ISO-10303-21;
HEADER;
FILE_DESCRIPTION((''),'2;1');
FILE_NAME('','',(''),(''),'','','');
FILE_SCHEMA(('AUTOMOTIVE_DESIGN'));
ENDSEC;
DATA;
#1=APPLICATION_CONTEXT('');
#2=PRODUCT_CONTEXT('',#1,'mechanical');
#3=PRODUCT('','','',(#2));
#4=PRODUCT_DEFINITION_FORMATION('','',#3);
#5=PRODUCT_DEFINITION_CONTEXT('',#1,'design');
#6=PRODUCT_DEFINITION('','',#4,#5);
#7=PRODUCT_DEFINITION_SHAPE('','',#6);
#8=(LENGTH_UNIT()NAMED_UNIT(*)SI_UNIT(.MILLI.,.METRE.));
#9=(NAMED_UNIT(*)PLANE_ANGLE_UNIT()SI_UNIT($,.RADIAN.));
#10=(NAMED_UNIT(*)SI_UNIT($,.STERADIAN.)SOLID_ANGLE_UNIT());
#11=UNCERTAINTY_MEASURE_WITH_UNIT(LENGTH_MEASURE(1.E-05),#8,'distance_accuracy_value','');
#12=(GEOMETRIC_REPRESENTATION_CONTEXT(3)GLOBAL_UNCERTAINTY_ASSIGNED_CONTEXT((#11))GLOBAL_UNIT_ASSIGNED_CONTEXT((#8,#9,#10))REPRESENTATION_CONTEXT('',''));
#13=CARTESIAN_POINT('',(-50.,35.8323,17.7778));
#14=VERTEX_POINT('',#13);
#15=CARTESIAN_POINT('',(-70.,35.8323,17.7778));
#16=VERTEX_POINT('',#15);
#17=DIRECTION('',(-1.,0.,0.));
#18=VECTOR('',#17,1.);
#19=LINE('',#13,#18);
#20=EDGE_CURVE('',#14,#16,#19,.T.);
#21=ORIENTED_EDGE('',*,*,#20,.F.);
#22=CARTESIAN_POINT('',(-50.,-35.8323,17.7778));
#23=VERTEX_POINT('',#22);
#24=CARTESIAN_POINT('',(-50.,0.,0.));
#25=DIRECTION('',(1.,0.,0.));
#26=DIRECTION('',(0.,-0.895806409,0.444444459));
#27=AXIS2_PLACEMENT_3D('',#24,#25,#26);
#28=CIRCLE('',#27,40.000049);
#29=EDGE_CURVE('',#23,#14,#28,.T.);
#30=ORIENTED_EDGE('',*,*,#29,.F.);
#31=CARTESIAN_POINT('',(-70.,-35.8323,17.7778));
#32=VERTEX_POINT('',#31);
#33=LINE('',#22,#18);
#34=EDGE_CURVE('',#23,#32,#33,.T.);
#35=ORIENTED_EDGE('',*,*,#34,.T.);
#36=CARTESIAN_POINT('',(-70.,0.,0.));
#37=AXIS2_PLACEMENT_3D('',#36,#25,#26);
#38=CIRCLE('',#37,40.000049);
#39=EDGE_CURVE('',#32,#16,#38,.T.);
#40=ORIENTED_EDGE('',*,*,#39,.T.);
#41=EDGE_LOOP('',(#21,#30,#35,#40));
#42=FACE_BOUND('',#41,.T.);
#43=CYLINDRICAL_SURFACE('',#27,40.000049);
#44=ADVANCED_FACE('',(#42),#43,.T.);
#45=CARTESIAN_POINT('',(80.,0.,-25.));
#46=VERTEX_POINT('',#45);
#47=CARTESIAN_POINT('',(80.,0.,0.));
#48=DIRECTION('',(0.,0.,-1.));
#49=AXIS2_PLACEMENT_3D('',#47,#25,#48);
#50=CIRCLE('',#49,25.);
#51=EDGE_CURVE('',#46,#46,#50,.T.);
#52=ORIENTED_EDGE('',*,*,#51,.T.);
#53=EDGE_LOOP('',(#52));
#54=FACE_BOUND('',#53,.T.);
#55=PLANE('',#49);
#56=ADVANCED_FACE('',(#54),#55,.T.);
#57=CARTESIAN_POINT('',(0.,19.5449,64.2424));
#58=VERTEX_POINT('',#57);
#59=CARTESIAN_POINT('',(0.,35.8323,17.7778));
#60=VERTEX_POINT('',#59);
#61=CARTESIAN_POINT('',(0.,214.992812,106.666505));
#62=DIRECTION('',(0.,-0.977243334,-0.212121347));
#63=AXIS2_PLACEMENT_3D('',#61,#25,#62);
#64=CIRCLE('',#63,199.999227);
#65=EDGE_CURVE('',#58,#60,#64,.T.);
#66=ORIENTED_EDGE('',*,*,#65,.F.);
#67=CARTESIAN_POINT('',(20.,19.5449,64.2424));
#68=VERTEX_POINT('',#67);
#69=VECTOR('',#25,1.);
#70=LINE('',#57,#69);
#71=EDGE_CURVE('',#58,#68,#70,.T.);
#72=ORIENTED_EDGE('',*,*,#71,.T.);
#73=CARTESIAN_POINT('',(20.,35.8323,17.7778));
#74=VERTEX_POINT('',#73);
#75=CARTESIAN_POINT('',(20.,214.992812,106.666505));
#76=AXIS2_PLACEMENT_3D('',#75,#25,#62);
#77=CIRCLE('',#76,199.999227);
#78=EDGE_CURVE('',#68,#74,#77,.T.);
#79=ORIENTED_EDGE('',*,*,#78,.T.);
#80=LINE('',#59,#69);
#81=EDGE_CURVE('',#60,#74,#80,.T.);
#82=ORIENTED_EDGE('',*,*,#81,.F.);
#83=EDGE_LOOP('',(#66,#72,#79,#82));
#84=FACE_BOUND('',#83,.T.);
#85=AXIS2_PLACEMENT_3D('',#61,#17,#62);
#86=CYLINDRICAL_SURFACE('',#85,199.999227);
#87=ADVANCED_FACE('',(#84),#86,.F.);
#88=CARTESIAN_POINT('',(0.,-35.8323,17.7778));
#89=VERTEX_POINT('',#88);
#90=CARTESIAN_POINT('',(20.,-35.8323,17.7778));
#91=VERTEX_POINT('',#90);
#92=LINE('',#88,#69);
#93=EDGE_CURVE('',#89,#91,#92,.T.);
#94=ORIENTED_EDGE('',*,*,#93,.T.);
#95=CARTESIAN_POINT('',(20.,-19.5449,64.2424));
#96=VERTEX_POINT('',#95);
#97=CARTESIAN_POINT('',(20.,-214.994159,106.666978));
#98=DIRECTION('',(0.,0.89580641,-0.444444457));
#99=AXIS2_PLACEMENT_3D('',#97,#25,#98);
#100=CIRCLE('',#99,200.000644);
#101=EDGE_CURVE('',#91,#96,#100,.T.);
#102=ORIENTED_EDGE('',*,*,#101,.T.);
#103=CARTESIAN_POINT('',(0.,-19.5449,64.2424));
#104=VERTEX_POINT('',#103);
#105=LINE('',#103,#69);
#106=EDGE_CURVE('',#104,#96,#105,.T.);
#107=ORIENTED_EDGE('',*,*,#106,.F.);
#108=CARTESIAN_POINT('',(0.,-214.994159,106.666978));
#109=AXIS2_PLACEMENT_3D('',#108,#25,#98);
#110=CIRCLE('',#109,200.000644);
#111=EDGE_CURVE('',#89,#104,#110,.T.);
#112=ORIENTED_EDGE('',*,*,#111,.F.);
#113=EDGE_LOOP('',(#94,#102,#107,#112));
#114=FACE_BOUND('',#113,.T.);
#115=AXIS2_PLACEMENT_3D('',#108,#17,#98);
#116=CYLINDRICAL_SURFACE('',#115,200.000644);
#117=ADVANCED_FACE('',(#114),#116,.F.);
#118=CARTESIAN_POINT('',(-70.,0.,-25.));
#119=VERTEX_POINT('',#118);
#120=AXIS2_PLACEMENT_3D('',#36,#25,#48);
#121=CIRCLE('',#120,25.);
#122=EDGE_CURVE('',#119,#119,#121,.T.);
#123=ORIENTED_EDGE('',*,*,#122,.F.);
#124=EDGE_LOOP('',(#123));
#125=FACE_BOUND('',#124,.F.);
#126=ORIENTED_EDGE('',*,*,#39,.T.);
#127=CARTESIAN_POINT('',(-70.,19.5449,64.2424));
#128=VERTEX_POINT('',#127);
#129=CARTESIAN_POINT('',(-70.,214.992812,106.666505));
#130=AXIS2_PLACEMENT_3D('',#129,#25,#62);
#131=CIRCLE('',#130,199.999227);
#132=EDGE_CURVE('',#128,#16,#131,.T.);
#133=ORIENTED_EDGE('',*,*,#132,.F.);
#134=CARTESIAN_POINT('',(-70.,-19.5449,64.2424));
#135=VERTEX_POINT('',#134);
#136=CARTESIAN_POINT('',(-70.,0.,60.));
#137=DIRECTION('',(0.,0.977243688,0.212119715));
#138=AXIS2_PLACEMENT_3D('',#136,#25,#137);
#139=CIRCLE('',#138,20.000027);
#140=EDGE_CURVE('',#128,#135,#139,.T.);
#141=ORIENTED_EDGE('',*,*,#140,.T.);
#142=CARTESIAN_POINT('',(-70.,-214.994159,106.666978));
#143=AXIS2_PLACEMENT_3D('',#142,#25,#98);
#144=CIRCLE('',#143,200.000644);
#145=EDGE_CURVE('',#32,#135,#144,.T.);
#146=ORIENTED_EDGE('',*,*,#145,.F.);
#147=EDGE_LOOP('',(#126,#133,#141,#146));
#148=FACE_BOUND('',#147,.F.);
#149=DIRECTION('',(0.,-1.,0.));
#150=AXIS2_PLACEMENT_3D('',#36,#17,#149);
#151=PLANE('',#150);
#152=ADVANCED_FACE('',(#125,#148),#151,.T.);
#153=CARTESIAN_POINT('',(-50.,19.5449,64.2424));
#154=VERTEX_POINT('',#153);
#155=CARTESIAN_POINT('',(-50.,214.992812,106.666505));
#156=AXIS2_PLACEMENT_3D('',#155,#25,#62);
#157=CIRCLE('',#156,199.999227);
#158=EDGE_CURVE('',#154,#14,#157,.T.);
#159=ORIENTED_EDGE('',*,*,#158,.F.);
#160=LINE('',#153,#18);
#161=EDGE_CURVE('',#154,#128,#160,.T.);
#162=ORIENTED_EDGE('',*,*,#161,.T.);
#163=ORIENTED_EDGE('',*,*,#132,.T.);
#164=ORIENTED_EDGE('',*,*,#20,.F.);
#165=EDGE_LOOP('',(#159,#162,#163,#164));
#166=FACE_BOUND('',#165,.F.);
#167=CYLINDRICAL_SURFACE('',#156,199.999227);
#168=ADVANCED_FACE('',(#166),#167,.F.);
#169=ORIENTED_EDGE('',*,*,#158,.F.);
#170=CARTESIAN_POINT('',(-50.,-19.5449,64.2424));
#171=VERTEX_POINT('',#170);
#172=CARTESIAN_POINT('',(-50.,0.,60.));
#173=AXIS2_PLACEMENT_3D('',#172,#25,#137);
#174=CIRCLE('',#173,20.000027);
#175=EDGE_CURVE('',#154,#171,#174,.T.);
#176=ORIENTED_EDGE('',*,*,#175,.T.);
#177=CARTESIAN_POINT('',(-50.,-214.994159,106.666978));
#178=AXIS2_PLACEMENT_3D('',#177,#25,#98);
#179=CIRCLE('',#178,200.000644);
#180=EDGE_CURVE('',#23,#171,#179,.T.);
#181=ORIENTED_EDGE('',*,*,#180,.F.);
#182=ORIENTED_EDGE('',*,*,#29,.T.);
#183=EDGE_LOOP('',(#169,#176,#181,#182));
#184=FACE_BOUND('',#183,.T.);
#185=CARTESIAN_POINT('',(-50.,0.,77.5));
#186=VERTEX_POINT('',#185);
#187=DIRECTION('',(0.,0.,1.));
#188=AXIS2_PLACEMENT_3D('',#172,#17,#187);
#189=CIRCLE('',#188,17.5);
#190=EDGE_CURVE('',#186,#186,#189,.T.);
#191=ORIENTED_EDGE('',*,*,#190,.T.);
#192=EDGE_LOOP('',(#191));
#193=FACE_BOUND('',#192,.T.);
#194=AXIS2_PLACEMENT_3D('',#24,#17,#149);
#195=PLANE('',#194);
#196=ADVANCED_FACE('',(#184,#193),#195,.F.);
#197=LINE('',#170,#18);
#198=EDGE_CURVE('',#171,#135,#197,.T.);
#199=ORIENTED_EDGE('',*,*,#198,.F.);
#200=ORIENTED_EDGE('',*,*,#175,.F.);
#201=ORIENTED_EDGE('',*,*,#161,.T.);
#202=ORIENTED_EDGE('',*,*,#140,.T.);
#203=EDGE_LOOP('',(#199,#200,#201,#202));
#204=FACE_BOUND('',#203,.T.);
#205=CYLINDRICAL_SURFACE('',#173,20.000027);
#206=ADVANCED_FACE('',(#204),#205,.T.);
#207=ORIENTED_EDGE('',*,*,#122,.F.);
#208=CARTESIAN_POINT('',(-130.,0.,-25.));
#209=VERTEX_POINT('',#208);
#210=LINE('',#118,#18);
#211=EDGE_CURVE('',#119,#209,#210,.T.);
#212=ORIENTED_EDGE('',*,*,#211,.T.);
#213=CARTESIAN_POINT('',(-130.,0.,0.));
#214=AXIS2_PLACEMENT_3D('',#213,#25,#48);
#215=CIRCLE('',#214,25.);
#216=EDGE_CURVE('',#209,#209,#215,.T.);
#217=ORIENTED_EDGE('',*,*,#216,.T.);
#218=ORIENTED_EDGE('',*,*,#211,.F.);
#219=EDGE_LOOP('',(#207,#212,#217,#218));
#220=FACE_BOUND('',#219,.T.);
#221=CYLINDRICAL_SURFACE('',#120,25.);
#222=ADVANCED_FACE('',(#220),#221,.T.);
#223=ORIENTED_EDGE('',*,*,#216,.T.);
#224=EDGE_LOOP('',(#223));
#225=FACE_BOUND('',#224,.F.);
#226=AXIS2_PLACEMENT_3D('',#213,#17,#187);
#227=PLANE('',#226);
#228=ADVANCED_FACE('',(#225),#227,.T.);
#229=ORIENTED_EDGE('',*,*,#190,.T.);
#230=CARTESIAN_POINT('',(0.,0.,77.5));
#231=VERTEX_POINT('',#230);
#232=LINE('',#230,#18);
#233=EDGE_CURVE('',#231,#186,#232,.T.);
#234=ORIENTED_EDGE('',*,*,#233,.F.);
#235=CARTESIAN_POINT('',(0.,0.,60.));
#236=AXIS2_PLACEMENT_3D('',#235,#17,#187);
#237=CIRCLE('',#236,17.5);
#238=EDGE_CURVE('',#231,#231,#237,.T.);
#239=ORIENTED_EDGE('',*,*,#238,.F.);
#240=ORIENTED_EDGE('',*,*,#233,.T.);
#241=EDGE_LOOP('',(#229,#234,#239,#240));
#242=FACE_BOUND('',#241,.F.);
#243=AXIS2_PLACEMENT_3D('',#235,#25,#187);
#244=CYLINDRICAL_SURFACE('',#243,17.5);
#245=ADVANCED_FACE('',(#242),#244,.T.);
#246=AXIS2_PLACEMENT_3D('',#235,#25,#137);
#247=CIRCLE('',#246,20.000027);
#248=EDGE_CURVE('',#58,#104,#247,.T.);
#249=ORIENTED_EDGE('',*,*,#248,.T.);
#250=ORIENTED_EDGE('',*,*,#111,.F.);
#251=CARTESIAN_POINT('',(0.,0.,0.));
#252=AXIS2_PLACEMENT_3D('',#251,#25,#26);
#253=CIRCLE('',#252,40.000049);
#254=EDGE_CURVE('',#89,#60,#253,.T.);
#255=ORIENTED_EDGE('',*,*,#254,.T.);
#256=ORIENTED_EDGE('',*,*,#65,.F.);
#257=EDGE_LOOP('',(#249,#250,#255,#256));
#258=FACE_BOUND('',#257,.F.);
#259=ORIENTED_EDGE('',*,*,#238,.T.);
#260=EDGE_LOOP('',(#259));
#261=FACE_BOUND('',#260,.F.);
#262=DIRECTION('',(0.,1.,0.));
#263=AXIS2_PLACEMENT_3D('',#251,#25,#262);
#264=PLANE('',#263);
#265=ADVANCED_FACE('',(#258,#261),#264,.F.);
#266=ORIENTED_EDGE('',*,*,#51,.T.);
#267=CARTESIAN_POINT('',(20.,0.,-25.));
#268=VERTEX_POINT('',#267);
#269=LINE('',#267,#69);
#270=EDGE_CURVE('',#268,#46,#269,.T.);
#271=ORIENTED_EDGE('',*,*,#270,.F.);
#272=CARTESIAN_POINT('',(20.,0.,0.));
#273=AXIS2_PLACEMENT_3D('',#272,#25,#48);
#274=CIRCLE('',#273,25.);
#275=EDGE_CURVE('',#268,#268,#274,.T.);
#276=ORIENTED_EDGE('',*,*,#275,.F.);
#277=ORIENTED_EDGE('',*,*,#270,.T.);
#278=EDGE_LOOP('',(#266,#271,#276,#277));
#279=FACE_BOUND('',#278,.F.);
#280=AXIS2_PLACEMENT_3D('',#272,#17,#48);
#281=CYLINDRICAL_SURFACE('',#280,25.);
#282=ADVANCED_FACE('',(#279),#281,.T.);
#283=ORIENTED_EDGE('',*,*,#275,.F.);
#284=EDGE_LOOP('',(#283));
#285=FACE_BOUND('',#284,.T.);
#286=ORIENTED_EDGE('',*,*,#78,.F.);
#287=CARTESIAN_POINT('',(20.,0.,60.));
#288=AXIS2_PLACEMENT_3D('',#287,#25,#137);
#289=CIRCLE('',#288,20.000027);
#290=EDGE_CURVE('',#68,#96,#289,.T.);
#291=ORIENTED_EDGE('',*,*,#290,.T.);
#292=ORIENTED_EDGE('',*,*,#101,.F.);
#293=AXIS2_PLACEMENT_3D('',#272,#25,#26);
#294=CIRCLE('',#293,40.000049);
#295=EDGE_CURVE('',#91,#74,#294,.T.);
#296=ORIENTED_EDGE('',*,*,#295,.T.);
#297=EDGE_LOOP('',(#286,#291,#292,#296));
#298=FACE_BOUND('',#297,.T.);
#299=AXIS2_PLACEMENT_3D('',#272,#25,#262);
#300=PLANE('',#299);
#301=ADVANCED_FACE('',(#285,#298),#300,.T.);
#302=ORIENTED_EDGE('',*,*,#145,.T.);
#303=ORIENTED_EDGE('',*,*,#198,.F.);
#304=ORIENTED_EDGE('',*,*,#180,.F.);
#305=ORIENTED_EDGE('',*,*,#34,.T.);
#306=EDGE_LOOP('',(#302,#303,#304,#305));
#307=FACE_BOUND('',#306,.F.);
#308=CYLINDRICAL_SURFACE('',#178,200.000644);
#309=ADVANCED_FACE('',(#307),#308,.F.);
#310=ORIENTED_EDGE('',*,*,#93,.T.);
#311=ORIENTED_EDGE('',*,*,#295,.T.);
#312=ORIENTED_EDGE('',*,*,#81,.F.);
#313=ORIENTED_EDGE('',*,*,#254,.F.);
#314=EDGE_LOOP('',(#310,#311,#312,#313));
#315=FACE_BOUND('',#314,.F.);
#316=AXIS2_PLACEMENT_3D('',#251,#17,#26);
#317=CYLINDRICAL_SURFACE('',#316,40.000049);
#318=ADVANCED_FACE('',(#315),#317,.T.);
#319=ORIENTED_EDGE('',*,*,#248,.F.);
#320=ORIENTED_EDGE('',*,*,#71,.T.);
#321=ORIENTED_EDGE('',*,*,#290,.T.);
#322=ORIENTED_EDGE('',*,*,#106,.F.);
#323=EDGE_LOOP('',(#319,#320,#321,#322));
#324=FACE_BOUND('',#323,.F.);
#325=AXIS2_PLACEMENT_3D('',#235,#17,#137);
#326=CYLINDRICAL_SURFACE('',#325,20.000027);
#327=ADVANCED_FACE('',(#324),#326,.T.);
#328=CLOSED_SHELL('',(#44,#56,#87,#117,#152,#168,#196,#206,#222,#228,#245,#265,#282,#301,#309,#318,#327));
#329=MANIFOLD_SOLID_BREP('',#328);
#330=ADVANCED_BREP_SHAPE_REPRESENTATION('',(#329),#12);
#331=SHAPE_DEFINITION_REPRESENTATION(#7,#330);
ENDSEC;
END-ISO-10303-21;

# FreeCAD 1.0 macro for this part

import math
import FreeCAD as App
import Part
import Sketcher
from FreeCAD import Vector

doc = App.newDocument("Part")
params = doc.addObject("Spreadsheet::Sheet", "Params")
for row, (alias, value) in enumerate([
    ("sketch1_radius", "200 mm"),
    ("sketch1_radius2", "40 mm"),
    ("sketch1_radius3", "20 mm"),
    ("pad1_length", "20 mm"),
    ("sketch2_diameter", "50 mm"),
    ("pad2_length", "60 mm"),
    ("sketch3_diameter", "35 mm"),
    ("pad3_length", "50 mm"),
], start=1):
    params.set(f"A{row}", alias)
    params.set(f"B{row}", "=" + value)
    params.setAlias(f"B{row}", alias)

body = doc.addObject("PartDesign::Body", "Body")

sketch1 = body.newObject("Sketcher::SketchObject", "Sketch")
sketch1.AttachmentSupport = (doc.getObject("YZ_Plane"), [""])
sketch1.MapMode = "FlatFace"
sketch1.addGeometry(Part.ArcOfCircle(Part.Circle(Vector(-215, 107, 0), Vector(0, 0, 1), 200), math.radians(-26.39), math.radians(-12.25)), False)
sketch1.addGeometry(Part.ArcOfCircle(Part.Circle(Vector(0, 0, 0), Vector(0, 0, 1), 40), math.radians(154), math.radians(386)), False)
sketch1.addGeometry(Part.ArcOfCircle(Part.Circle(Vector(215, 107, 0), Vector(0, 0, 1), 200), math.radians(-167.75), math.radians(-153.61)), False)
sketch1.addGeometry(Part.ArcOfCircle(Part.Circle(Vector(0, 60, 0), Vector(0, 0, 1), 20), math.radians(12), math.radians(168)), False)
sketch1.addConstraint(Sketcher.Constraint("Tangent", 0, 1, 1, 1))
sketch1.addConstraint(Sketcher.Constraint("Tangent", 1, 2, 2, 2))
sketch1.addConstraint(Sketcher.Constraint("Tangent", 2, 1, 3, 1))
sketch1.addConstraint(Sketcher.Constraint("Tangent", 3, 2, 0, 2))
sketch1.addConstraint(Sketcher.Constraint("Coincident", 1, 3, -1, 1))
sketch1.addConstraint(Sketcher.Constraint("Equal", 0, 2))
sketch1.addConstraint(Sketcher.Constraint("PointOnObject", 3, 3, -2))
sketch1.addConstraint(Sketcher.Constraint("Radius", 0, 200.0))
sketch1.addConstraint(Sketcher.Constraint("Radius", 1, 40.0))
sketch1.addConstraint(Sketcher.Constraint("Radius", 3, 20.0))
sketch1.addConstraint(Sketcher.Constraint("DistanceY", -1, 1, 3, 3, 60.0))
sketch1.setExpression("Constraints[7]", "Params.sketch1_radius")
sketch1.setExpression("Constraints[8]", "Params.sketch1_radius2")
sketch1.setExpression("Constraints[9]", "Params.sketch1_radius3")
pad1 = body.newObject("PartDesign::Pad", "Pad")
pad1.Profile = sketch1
pad1.setExpression("Length", "Params.pad1_length")

sketch2 = body.newObject("Sketcher::SketchObject", "Sketch001")
sketch2.AttachmentSupport = (doc.getObject("YZ_Plane"), [""])
sketch2.MapMode = "FlatFace"
sketch2.AttachmentOffset = App.Placement(Vector(0, 0, 20), App.Rotation())
sketch2.addGeometry(Part.Circle(Vector(0, 0, 0), Vector(0, 0, 1), 25), False)
sketch2.addConstraint(Sketcher.Constraint("Coincident", 0, 3, -1, 1))
sketch2.addConstraint(Sketcher.Constraint("Diameter", 0, 50.0))
sketch2.setExpression("Constraints[1]", "Params.sketch2_diameter")
pad2 = body.newObject("PartDesign::Pad", "Pad001")
pad2.Profile = sketch2
pad2.setExpression("Length", "Params.pad2_length")

sketch3 = body.newObject("Sketcher::SketchObject", "Sketch002")
sketch3.AttachmentSupport = (doc.getObject("YZ_Plane"), [""])
sketch3.MapMode = "FlatFace"
sketch3.addGeometry(Part.Circle(Vector(0, 60, 0), Vector(0, 0, 1), 18), False)
sketch3.addConstraint(Sketcher.Constraint("PointOnObject", 0, 3, -2))
sketch3.addConstraint(Sketcher.Constraint("Diameter", 0, 35.0))
sketch3.addConstraint(Sketcher.Constraint("DistanceY", -1, 1, 0, 3, 60.0))
sketch3.setExpression("Constraints[1]", "Params.sketch3_diameter")
pad3 = body.newObject("PartDesign::Pad", "Pad002")
pad3.Profile = sketch3
pad3.setExpression("Length", "Params.pad3_length")
pad3.Reversed = True
doc.recompute()

datumplane = body.newObject("PartDesign::Plane", "DatumPlane")
datumplane.AttachmentSupport = (doc.getObject("YZ_Plane"), [""])
datumplane.MapMode = "FlatFace"
datumplane.AttachmentOffset = App.Placement(Vector(0, 0, -25), App.Rotation())
mirrored = body.newObject("PartDesign::Mirrored", "Mirrored")
mirrored.Originals = [pad1]
mirrored.MirrorPlane = (datumplane, [""])
body.Tip = mirrored
doc.recompute()

datumplane2 = body.newObject("PartDesign::Plane", "DatumPlane001")
datumplane2.AttachmentSupport = (doc.getObject("YZ_Plane"), [""])
datumplane2.MapMode = "FlatFace"
datumplane2.AttachmentOffset = App.Placement(Vector(0, 0, -25), App.Rotation())
mirrored2 = body.newObject("PartDesign::Mirrored", "Mirrored001")
mirrored2.Originals = [pad2]
mirrored2.MirrorPlane = (datumplane2, [""])
body.Tip = mirrored2

doc.recompute()
